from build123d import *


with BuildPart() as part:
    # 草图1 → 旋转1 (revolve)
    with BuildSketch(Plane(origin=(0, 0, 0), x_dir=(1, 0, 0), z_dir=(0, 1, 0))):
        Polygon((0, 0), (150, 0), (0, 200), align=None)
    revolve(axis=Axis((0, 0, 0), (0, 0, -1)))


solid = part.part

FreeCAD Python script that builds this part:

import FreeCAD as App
import Part
import Sketcher
Q = App.Units.Quantity

doc = App.newDocument("Part")
params = doc.addObject("Spreadsheet::Sheet", "Params")
for row, (alias, value) in enumerate([
    ("sketch1_width", "150 mm"),
    ("sketch1_height", "200 mm"),
    ("revolution_angle", "360 deg"),
], start=1):
    params.set(f"A{row}", alias)
    params.set(f"B{row}", "=" + value)
    params.setAlias(f"B{row}", alias)

body = doc.addObject("PartDesign::Body", "Body")

# Sketch on XZ plane
sketch1 = doc.addObject("Sketcher::SketchObject", "Sketch")
body.addObject(sketch1)
sketch1.AttachmentSupport = (doc.XZ_Plane, [""])
sketch1.MapMode = "FlatFace"
sketch1.addGeometry([
    Part.LineSegment(App.Vector(0, 0, 0), App.Vector(150, 0, 0)),
    Part.LineSegment(App.Vector(150, 0, 0), App.Vector(0, -200, 0)),
    Part.LineSegment(App.Vector(0, -200, 0), App.Vector(0, 0, 0)),
], False)
sketch1.addConstraint([
    Sketcher.Constraint("Coincident", 0, 2, 1, 1),
    Sketcher.Constraint("Coincident", 1, 2, 2, 1),
    Sketcher.Constraint("Coincident", 2, 2, 0, 1),
    Sketcher.Constraint("Horizontal", 0),
    Sketcher.Constraint("Vertical", 2),
    Sketcher.Constraint("Coincident", 2, 2, -1, 1),
    Sketcher.Constraint("DistanceX", 0, 1, 0, 2, Q("150 mm")),
    Sketcher.Constraint("DistanceY", 2, 1, 2, 2, Q("200 mm")),
])
sketch1.setExpression("Constraints[6]", "Params.sketch1_width")
sketch1.setExpression("Constraints[7]", "Params.sketch1_height")
revolution = doc.addObject("PartDesign::Revolution", "Revolution")
body.addObject(revolution)
revolution.Profile = sketch1
revolution.ReferenceAxis = (sketch1, ["V_Axis"])
revolution.setExpression("Angle", "Params.revolution_angle")

doc.recompute()
